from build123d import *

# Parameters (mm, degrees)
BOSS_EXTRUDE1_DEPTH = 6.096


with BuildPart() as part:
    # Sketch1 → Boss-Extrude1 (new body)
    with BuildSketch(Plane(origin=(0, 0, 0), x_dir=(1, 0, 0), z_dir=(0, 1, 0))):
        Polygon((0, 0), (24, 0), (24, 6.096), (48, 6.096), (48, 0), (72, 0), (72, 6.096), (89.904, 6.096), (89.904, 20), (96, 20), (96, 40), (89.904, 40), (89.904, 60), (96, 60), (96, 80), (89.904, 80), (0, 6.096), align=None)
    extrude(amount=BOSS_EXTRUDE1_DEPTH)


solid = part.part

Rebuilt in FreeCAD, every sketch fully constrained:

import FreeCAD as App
import Part
import Sketcher
from FreeCAD import Vector


def add_polygon(sketch, points):
    """Adds a closed chain of lines whose ends are joined by coincident constraints."""
    first, n = sketch.GeometryCount, len(points)
    for a, b in zip(points, points[1:] + points[:1]):
        sketch.addGeometry(Part.LineSegment(App.Vector(*a, 0), App.Vector(*b, 0)), False)
    for i in range(n):
        sketch.addConstraint(Sketcher.Constraint("Coincident", first + i, 2, first + (i + 1) % n, 1))

doc = App.newDocument("Part")
body = doc.addObject("PartDesign::Body", "Body")

sketch1 = doc.addObject("Sketcher::SketchObject", "Sketch")
body.addObject(sketch1)
sketch1.AttachmentSupport = (doc.XZ_Plane, [""])
sketch1.MapMode = "FlatFace"
add_polygon(sketch1, [(0, 0), (24, 0), (24, -6), (48, -6), (48, 0), (72, 0), (72, -6), (90, -6), (90, -20), (96, -20), (96, -40), (90, -40), (90, -60), (96, -60), (96, -80), (90, -80), (0, -6)])
sketch1.addConstraint([
    Sketcher.Constraint("Horizontal", 0),
    Sketcher.Constraint("Vertical", 1),
    Sketcher.Constraint("Horizontal", 2),
    Sketcher.Constraint("Vertical", 3),
    Sketcher.Constraint("Horizontal", 4),
    Sketcher.Constraint("Vertical", 5),
    Sketcher.Constraint("Horizontal", 6),
    Sketcher.Constraint("Vertical", 7),
    Sketcher.Constraint("Horizontal", 8),
    Sketcher.Constraint("Vertical", 9),
    Sketcher.Constraint("Horizontal", 10),
    Sketcher.Constraint("Vertical", 11),
    Sketcher.Constraint("Horizontal", 12),
    Sketcher.Constraint("Vertical", 13),
    Sketcher.Constraint("Horizontal", 14),
    Sketcher.Constraint("Vertical", 16),
    Sketcher.Constraint("Coincident", 16, 2, -1, 1),
    Sketcher.Constraint("PointOnObject", 3, 2, -1),
    Sketcher.Constraint("Horizontal", 2, 2, 5, 2),
    Sketcher.Constraint("Horizontal", 6, 2, 15, 2),
    Sketcher.Constraint("Vertical", 7, 2, 10, 2),
    Sketcher.Constraint("Vertical", 9, 2, 12, 2),
    Sketcher.Constraint("Vertical", 11, 2, 14, 2),
    Sketcher.Constraint("Equal", 0, 2),
    Sketcher.Constraint("Equal", 2, 4),
    Sketcher.Constraint("Equal", 14, 1),
    Sketcher.Constraint("Equal", 9, 11),
    Sketcher.Constraint("Equal", 11, 13),
    Sketcher.Constraint("DistanceX", 0, 1, 0, 2, 24.0),
    Sketcher.Constraint("DistanceY", 9, 2, 9, 1, 20.0),
    Sketcher.Constraint("DistanceY", 7, 2, -1, 1, 20.0),
    Sketcher.Constraint("DistanceX", -1, 1, 8, 2, 96.0),
    Sketcher.Constraint("DistanceX", 6, 1, 6, 2, 17.904),
])
pad1 = doc.addObject("PartDesign::Pad", "Pad")
body.addObject(pad1)
pad1.Profile = sketch1
pad1.Length = 6.096
pad1.Reversed = True

doc.recompute()
